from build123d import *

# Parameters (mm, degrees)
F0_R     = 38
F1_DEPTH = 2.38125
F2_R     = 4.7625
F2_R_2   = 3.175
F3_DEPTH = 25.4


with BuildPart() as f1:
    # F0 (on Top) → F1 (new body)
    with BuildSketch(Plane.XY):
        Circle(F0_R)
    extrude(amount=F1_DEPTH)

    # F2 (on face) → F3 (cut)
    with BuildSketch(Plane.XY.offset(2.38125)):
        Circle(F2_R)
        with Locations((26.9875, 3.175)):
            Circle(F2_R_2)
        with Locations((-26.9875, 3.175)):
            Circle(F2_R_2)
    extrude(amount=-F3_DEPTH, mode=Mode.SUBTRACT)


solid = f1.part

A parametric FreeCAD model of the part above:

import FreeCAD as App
import Part
import Sketcher
Q = App.Units.Quantity

doc = App.newDocument("Part")
body = doc.addObject("PartDesign::Body", "Body")

# Sketch on XY plane
sketch1 = doc.addObject("Sketcher::SketchObject", "Sketch")
body.addObject(sketch1)
sketch1.AttachmentSupport = (doc.XY_Plane, [""])
sketch1.MapMode = "FlatFace"
sketch1.addGeometry(Part.Circle(App.Vector(0, 0, 0), App.Vector(0, 0, 1), 38), False)
sketch1.addConstraint(Sketcher.Constraint("Coincident", 0, 3, -1, 1))
sketch1.addConstraint(Sketcher.Constraint("Diameter", 0, 76.0))
pad1 = doc.addObject("PartDesign::Pad", "Pad")
body.addObject(pad1)
pad1.Profile = sketch1
pad1.Length = Q("0.09375 in")

# Sketch on XY plane
sketch2 = doc.addObject("Sketcher::SketchObject", "Sketch001")
body.addObject(sketch2)
sketch2.AttachmentSupport = (doc.XY_Plane, [""])
sketch2.MapMode = "FlatFace"
sketch2.AttachmentOffset = App.Placement(App.Vector(0, 0, 0.09375 * 25.4), App.Rotation())
sketch2.addGeometry(Part.Circle(App.Vector(0, 0, 0), App.Vector(0, 0, 1), 4.8), False)
sketch2.addGeometry(Part.Circle(App.Vector(27, 3.2, 0), App.Vector(0, 0, 1), 3.2), False)
sketch2.addGeometry(Part.Circle(App.Vector(-27, 3.2, 0), App.Vector(0, 0, 1), 3.2), False)
sketch2.addConstraint(Sketcher.Constraint("Coincident", 0, 3, -1, 1))
sketch2.addConstraint(Sketcher.Constraint("Equal", 1, 2))
sketch2.addConstraint(Sketcher.Constraint("Symmetric", 1, 3, 2, 3, -2))
sketch2.addConstraint(Sketcher.Constraint("Diameter", 1, Q("0.25 in")))
sketch2.addConstraint(Sketcher.Constraint("Diameter", 0, Q("0.375 in")))
sketch2.addConstraint(Sketcher.Constraint("DistanceX", -1, 1, 1, 3, Q("1.0625 in")))
sketch2.addConstraint(Sketcher.Constraint("DistanceY", -1, 1, 1, 3, Q("0.125 in")))
pocket1 = doc.addObject("PartDesign::Pocket", "Pocket")
body.addObject(pocket1)
pocket1.Profile = sketch2
pocket1.Length = Q("1 in")

doc.recompute()
